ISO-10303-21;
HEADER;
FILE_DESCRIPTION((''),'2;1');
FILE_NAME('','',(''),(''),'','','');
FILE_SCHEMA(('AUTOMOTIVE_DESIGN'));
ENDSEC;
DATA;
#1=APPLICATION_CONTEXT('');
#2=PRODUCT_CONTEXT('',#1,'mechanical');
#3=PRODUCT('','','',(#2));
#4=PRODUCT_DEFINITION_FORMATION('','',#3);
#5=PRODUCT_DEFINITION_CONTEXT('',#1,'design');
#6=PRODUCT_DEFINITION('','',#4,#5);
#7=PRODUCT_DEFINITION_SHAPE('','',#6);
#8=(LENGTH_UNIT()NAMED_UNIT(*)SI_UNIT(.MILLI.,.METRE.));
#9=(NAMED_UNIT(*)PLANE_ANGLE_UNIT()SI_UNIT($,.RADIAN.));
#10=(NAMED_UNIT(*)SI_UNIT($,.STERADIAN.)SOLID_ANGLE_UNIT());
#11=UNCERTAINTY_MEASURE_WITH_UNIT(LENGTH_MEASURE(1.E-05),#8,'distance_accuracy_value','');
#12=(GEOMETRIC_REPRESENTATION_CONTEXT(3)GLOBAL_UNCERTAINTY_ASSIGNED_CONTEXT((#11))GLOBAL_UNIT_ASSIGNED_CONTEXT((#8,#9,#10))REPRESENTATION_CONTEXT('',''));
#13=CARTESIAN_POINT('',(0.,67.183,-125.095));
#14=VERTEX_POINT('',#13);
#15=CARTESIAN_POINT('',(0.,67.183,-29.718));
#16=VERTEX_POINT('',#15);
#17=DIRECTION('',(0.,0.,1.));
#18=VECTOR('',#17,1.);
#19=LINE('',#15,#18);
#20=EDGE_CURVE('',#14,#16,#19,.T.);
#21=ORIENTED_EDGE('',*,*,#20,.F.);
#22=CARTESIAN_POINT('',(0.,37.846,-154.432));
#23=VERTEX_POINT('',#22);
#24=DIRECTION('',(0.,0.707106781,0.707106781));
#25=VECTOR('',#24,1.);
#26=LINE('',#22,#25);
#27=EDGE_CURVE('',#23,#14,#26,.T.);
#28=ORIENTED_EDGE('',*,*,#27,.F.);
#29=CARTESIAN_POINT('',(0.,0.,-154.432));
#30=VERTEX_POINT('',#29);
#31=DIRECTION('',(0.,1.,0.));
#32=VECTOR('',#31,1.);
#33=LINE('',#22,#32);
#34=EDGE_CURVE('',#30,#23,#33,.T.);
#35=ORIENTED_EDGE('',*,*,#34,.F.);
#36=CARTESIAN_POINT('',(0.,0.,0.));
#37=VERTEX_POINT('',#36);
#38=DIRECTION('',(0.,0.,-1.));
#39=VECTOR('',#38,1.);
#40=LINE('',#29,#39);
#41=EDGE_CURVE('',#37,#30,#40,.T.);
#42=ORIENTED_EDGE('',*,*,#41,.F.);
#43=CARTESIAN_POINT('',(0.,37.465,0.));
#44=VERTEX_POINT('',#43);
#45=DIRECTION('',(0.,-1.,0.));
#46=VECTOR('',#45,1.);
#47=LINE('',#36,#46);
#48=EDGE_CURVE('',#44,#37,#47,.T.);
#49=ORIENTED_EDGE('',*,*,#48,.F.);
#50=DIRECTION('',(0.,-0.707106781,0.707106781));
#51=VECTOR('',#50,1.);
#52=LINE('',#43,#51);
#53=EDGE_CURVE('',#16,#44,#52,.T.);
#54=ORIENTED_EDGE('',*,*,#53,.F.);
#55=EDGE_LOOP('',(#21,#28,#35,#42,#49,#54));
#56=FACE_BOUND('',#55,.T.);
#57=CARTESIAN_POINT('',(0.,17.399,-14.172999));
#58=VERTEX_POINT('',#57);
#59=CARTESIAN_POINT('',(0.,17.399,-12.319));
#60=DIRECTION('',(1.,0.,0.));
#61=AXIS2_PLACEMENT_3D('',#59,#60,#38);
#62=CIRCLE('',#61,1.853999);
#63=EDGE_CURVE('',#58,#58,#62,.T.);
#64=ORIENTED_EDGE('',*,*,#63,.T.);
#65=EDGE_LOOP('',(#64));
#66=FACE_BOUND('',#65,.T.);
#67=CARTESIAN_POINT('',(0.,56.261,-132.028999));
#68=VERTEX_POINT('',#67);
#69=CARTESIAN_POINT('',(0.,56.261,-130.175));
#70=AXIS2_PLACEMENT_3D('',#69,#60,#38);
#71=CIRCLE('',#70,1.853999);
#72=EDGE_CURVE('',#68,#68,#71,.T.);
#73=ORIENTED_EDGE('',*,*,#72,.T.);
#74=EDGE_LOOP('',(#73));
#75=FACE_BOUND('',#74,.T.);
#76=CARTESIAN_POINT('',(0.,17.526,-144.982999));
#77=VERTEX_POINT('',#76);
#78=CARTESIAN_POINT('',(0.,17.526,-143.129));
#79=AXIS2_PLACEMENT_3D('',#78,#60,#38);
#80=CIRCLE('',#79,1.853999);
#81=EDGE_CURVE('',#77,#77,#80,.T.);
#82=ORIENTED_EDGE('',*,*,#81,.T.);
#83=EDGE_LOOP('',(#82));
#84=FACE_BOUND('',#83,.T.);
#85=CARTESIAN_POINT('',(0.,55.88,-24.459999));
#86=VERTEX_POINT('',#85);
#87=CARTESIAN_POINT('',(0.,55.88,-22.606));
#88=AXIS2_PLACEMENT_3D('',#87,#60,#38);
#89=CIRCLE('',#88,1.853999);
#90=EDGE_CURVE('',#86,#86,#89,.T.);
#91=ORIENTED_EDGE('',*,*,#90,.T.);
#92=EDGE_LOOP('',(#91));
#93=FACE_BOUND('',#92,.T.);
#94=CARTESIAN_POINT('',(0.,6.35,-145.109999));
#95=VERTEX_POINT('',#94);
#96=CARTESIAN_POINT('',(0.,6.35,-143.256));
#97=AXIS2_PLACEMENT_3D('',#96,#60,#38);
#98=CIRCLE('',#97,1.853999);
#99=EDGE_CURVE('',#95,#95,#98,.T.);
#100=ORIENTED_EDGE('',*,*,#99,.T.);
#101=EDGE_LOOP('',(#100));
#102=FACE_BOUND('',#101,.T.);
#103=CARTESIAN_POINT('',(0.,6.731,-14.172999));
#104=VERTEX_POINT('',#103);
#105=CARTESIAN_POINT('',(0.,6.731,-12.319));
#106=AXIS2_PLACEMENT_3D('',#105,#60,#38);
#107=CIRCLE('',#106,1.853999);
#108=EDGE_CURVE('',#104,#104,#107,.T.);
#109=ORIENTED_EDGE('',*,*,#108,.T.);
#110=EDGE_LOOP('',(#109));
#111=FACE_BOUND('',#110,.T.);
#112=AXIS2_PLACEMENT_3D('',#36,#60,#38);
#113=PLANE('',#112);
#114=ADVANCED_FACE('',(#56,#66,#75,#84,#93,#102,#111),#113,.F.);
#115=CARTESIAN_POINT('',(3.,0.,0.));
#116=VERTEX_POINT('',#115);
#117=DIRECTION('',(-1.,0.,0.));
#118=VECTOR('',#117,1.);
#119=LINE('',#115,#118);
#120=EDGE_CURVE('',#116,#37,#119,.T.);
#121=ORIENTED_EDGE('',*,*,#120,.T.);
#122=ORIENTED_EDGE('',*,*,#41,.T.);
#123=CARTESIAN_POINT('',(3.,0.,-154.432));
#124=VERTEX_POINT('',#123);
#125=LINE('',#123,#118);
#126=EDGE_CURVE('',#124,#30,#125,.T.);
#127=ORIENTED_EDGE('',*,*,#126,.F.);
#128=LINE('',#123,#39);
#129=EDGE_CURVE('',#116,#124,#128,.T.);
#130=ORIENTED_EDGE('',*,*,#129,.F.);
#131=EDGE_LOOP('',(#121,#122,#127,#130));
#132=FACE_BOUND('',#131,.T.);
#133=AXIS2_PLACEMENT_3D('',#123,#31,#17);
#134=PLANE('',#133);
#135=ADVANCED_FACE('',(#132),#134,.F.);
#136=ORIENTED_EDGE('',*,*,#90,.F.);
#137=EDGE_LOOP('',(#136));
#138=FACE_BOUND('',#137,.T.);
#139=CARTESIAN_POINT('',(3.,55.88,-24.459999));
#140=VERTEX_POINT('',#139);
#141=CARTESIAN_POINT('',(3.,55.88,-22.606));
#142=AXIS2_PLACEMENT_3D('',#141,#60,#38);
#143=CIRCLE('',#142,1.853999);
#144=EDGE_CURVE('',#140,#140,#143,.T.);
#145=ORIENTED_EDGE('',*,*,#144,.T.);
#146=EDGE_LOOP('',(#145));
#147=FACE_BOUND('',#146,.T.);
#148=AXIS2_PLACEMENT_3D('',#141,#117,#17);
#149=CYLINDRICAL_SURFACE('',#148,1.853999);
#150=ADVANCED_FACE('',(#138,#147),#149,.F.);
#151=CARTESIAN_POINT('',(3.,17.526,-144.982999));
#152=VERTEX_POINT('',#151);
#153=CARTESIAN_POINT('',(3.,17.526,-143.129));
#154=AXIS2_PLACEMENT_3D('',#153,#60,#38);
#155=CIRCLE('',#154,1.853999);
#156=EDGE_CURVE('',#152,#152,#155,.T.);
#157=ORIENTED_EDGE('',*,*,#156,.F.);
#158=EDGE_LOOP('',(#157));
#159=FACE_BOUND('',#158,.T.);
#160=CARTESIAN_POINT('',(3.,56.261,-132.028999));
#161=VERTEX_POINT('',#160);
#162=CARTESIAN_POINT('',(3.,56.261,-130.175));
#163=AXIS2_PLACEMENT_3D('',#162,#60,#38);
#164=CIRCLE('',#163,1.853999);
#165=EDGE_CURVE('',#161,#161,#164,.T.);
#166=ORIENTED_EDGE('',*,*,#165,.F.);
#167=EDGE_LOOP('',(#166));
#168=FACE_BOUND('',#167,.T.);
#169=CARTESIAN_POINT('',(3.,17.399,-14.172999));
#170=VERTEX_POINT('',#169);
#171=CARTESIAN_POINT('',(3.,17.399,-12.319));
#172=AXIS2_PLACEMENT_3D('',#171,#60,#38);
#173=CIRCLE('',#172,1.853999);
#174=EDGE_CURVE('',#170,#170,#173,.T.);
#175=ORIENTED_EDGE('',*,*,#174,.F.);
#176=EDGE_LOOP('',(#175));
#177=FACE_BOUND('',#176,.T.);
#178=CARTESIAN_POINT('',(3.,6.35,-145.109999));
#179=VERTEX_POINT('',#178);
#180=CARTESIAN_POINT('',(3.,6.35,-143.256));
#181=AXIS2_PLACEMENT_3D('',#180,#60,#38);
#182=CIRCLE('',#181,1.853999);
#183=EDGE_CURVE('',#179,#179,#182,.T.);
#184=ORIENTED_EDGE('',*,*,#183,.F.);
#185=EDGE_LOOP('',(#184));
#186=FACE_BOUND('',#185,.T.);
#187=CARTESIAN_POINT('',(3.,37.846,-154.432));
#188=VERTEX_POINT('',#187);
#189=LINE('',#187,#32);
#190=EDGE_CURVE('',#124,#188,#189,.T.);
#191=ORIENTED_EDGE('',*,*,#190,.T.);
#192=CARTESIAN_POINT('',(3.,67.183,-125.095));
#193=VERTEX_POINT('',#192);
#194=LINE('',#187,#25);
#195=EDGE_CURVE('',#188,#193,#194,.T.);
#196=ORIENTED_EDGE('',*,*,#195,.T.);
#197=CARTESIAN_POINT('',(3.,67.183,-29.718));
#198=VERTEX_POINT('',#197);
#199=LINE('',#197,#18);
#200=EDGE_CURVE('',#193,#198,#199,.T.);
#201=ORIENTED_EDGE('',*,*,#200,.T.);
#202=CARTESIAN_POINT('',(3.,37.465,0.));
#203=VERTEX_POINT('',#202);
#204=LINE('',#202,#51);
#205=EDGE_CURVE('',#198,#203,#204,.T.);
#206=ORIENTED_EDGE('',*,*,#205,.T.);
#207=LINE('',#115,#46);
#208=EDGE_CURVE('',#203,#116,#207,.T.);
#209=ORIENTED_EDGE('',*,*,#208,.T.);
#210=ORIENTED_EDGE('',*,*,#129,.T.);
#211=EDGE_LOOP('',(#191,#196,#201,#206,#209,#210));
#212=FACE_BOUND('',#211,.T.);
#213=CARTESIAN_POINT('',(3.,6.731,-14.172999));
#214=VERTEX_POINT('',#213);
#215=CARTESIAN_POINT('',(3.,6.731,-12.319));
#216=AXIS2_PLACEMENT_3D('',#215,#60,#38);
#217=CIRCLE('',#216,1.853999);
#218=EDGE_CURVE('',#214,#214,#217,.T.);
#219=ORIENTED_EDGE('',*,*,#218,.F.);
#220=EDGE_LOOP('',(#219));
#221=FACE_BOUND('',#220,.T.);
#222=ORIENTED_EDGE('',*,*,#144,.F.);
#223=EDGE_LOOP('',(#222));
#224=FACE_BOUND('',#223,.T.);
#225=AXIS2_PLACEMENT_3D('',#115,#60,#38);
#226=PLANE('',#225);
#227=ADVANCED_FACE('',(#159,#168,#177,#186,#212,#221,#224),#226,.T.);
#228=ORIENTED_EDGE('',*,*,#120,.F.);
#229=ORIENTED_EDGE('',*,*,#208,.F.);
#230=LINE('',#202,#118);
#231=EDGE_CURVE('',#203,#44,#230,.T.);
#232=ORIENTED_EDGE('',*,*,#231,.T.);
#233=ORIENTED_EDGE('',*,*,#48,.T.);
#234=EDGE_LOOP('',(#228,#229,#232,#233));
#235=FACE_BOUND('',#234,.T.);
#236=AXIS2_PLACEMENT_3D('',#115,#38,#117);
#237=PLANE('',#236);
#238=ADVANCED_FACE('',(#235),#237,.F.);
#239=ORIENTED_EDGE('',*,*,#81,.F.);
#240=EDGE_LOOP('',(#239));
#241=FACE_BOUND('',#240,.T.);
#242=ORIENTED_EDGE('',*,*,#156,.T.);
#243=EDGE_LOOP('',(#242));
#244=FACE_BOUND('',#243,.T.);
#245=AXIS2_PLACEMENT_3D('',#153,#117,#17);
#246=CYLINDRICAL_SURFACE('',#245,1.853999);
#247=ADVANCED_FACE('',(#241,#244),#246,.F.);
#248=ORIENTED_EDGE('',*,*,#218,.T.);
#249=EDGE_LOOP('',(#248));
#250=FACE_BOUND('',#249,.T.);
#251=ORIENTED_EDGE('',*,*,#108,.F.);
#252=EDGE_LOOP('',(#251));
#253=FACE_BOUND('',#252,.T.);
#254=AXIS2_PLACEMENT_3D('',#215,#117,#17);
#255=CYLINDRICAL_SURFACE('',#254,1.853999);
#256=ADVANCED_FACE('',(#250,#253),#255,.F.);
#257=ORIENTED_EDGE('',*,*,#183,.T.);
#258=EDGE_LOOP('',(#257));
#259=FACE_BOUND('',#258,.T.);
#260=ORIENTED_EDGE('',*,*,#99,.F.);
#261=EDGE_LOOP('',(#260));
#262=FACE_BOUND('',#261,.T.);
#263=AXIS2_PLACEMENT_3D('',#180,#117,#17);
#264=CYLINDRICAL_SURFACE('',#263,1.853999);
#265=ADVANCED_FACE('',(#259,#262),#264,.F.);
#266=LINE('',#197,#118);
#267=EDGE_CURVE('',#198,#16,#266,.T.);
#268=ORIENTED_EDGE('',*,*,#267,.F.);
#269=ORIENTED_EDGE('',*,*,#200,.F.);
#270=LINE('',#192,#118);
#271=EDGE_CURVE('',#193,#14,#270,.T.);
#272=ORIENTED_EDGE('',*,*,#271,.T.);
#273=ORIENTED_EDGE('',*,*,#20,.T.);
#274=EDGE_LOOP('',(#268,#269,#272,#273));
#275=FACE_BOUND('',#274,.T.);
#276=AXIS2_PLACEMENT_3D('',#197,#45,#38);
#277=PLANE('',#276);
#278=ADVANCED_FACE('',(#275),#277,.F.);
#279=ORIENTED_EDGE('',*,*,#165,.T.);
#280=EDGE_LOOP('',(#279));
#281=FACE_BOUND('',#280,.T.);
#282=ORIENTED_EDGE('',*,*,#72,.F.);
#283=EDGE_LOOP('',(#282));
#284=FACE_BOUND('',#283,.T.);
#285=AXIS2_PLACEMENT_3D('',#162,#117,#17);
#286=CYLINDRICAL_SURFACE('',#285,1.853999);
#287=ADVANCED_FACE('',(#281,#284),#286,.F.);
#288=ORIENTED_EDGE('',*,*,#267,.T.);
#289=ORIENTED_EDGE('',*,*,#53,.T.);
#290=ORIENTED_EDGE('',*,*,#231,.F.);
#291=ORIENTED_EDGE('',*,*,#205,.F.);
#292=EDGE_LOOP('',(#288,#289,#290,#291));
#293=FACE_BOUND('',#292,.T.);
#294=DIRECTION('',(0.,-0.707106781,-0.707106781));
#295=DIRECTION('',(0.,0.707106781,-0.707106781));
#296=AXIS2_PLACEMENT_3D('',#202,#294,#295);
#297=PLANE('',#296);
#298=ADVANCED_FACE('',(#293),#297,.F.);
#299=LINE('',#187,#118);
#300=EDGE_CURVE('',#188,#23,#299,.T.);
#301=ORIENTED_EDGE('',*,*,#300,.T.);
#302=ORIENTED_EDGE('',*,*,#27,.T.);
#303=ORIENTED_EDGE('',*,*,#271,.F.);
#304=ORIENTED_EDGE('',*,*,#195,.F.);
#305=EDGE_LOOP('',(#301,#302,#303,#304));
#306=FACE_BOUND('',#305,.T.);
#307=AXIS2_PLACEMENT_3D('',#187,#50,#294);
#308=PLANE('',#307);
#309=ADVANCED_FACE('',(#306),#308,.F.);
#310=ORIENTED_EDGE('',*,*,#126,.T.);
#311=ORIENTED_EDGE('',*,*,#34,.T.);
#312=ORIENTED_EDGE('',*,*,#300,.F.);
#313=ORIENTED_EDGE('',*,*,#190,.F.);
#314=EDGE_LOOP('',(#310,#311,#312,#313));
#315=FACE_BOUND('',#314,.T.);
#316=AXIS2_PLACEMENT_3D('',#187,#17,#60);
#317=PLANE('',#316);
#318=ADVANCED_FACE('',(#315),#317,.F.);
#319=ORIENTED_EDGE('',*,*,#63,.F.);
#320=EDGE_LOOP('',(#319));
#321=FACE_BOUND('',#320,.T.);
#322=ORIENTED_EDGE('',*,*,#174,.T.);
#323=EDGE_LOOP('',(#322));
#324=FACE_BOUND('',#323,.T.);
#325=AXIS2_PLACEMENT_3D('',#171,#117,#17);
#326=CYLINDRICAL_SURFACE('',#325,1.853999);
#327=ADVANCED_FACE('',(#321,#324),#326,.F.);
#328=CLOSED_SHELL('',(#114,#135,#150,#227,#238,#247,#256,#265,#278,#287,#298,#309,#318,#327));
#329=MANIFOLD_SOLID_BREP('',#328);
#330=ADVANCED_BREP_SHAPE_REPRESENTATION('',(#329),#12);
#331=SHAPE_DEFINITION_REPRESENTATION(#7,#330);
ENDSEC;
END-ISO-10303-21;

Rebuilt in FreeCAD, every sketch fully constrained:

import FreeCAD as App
import Part
import Sketcher
from FreeCAD import Vector
Q = App.Units.Quantity


def add_polygon(sketch, points):
    """Adds a closed chain of lines whose ends are joined by coincident constraints."""
    first, n = sketch.GeometryCount, len(points)
    for a, b in zip(points, points[1:] + points[:1]):
        sketch.addGeometry(Part.LineSegment(App.Vector(*a, 0), App.Vector(*b, 0)), False)
    for i in range(n):
        sketch.addConstraint(Sketcher.Constraint("Coincident", first + i, 2, first + (i + 1) % n, 1))

doc = App.newDocument("Part")
params = doc.addObject("Spreadsheet::Sheet", "Params")
for row, (alias, value) in enumerate([
    ("sketch1_width", "1.49 in"),
    ("sketch1_height", "6.08 in"),
    ("sketch1_width2", "1.475 in"),
    ("sketch1_height2", "3.755 in"),
    ("pad1_length", "3 mm"),
], start=1):
    params.set(f"A{row}", alias)
    params.set(f"B{row}", "=" + value)
    params.setAlias(f"B{row}", alias)

body = doc.addObject("PartDesign::Body", "Body")

# Sketch on YZ plane
sketch1 = body.newObject("Sketcher::SketchObject", "Sketch")
sketch1.AttachmentSupport = (doc.getObject("YZ_Plane"), [""])
sketch1.MapMode = "FlatFace"
add_polygon(sketch1, [(37.5, 0), (0, 0), (0, -154.4), (37.8, -154.4), (67.2, -125.1), (67.2, -29.7)])  # lines 0-5
sketch1.addGeometry(Part.Circle(Vector(6.3, -143.3, 0), Vector(0, 0, 1), 1.9), False)  # 6
sketch1.addGeometry(Part.Circle(Vector(17.5, -143.1, 0), Vector(0, 0, 1), 1.9), False)  # 7
sketch1.addGeometry(Part.Circle(Vector(6.7, -12.3, 0), Vector(0, 0, 1), 1.9), False)  # 8
sketch1.addGeometry(Part.Circle(Vector(17.4, -12.3, 0), Vector(0, 0, 1), 1.9), False)  # 9
sketch1.addGeometry(Part.Circle(Vector(56.3, -130.2, 0), Vector(0, 0, 1), 1.9), False)  # 10
sketch1.addGeometry(Part.Circle(Vector(55.9, -22.6, 0), Vector(0, 0, 1), 1.9), False)  # 11
sketch1.addConstraint([
    Sketcher.Constraint("Horizontal", 0),
    Sketcher.Constraint("Vertical", 1),
    Sketcher.Constraint("Horizontal", 2),
    Sketcher.Constraint("Vertical", 4),
    Sketcher.Constraint("Coincident", 0, 2, -1, 1),
    Sketcher.Constraint("Equal", 6, 7),
    Sketcher.Constraint("Equal", 7, 8),
    Sketcher.Constraint("Equal", 8, 9),
    Sketcher.Constraint("Equal", 9, 10),
    Sketcher.Constraint("Equal", 10, 11),
    Sketcher.Constraint("Perpendicular", 3, 5),
    Sketcher.Constraint("Horizontal", 8, 3, 9, 3),
    Sketcher.Constraint("Angle", 3, Q("45 deg")),
    Sketcher.Constraint("DistanceX", 2, 1, 2, 2, Q("1.49 in")),
    Sketcher.Constraint("DistanceY", 1, 2, 1, 1, Q("6.08 in")),
    Sketcher.Constraint("DistanceX", -1, 1, 11, 3, Q("2.2 in")),
    Sketcher.Constraint("DistanceX", 7, 3, 2, 2, Q("0.8 in")),
    Sketcher.Constraint("DistanceY", 10, 3, 3, 2, Q("0.2 in")),
    Sketcher.Constraint("Diameter", 6, Q("3.707999 mm")),
    Sketcher.Constraint("DistanceX", 0, 2, 0, 1, Q("1.475 in")),
    Sketcher.Constraint("DistanceY", 4, 1, 4, 2, Q("3.755 in")),
    Sketcher.Constraint("DistanceX", -1, 1, 6, 3, Q("0.25 in")),
    Sketcher.Constraint("DistanceY", 6, 3, -1, 1, Q("5.64 in")),
    Sketcher.Constraint("DistanceY", 11, 3, -1, 1, Q("0.89 in")),
    Sketcher.Constraint("DistanceY", 7, 3, 8, 3, Q("5.15 in")),
    Sketcher.Constraint("DistanceX", 8, 3, 9, 3, Q("0.42 in")),
    Sketcher.Constraint("DistanceY", 7, 3, 10, 3, Q("0.51 in")),
    Sketcher.Constraint("DistanceX", 9, 3, 10, 3, Q("1.53 in")),
    Sketcher.Constraint("DistanceX", 10, 3, 3, 2, Q("0.43 in")),
])
sketch1.setExpression("Constraints[19]", "Params.sketch1_width")
sketch1.setExpression("Constraints[20]", "Params.sketch1_height")
sketch1.setExpression("Constraints[25]", "Params.sketch1_width2")
sketch1.setExpression("Constraints[26]", "Params.sketch1_height2")
pad1 = body.newObject("PartDesign::Pad", "Pad")
pad1.Profile = sketch1
pad1.setExpression("Length", "Params.pad1_length")

doc.recompute()
